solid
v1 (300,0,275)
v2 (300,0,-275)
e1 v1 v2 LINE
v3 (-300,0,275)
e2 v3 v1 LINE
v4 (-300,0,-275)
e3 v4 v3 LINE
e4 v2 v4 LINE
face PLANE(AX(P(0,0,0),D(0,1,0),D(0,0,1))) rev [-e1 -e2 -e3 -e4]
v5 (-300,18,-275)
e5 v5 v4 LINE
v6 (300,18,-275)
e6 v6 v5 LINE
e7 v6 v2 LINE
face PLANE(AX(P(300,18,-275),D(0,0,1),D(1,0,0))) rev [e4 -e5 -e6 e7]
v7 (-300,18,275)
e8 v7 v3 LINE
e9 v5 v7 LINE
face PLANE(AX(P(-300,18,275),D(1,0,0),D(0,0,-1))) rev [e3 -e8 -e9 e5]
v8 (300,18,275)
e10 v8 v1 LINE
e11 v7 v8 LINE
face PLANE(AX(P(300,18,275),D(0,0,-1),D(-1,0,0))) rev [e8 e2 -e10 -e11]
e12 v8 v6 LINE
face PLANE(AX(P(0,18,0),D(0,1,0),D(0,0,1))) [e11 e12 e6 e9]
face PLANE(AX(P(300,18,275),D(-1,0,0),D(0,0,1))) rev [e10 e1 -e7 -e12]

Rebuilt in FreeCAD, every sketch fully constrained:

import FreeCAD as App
import Part
import Sketcher
from FreeCAD import Vector


def add_polygon(sketch, points):
    """Adds a closed chain of lines whose ends are joined by coincident constraints."""
    first, n = sketch.GeometryCount, len(points)
    for a, b in zip(points, points[1:] + points[:1]):
        sketch.addGeometry(Part.LineSegment(App.Vector(*a, 0), App.Vector(*b, 0)), False)
    for i in range(n):
        sketch.addConstraint(Sketcher.Constraint("Coincident", first + i, 2, first + (i + 1) % n, 1))

doc = App.newDocument("Part")
body = doc.addObject("PartDesign::Body", "Body")

sketch1 = body.newObject("Sketcher::SketchObject", "Sketch")
sketch1.AttachmentSupport = (doc.getObject("XZ_Plane"), [""])
sketch1.MapMode = "FlatFace"
add_polygon(sketch1, [(-300, -275), (-300, 275), (300, 275), (300, -275)])
sketch1.addConstraint([
    Sketcher.Constraint("Vertical", 0),
    Sketcher.Constraint("Horizontal", 1),
    Sketcher.Constraint("Vertical", 2),
    Sketcher.Constraint("Horizontal", 3),
    Sketcher.Constraint("Symmetric", 0, 2, 2, 2, -1, 1),
    Sketcher.Constraint("DistanceX", 1, 1, 1, 2, 600.0),
    Sketcher.Constraint("DistanceY", 0, 1, 0, 2, 550.0),
])
pad1 = body.newObject("PartDesign::Pad", "Pad")
pad1.Profile = sketch1
pad1.Length = 18
pad1.Reversed = True

doc.recompute()
